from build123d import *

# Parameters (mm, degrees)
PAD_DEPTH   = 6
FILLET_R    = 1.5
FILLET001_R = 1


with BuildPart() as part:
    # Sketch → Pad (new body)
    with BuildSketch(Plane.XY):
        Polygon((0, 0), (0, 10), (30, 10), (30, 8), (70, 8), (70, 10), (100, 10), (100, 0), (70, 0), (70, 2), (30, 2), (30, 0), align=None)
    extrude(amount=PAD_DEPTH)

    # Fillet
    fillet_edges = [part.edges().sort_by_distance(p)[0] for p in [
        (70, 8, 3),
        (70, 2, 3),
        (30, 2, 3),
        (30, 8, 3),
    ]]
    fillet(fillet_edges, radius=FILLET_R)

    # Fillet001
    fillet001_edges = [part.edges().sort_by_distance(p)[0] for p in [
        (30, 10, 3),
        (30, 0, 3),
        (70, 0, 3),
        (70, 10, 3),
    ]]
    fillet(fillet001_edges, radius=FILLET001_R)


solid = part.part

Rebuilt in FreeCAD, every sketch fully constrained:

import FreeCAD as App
import Part
import Sketcher
from FreeCAD import Vector


def edges_at(feature, points):
    """Names of the edges that pass closest to the given points."""
    edges = feature.Shape.Edges
    near = lambda p: min(range(len(edges)), key=lambda i: edges[i].distToShape(Part.Vertex(*p))[0])
    return sorted({f"Edge{near(p) + 1}" for p in points})

doc = App.newDocument("Part")
params = doc.addObject("Spreadsheet::Sheet", "Params")
for row, (alias, value) in enumerate([
    ("sketch1_width", "30 mm"),
    ("sketch1_width2", "40 mm"),
    ("sketch1_height", "10 mm"),
    ("sketch1_height2", "2 mm"),
    ("pad1_length", "6 mm"),
    ("fillet_radius", "1.5 mm"),
    ("fillet2_radius", "1 mm"),
], start=1):
    params.set(f"A{row}", alias)
    params.set(f"B{row}", "=" + value)
    params.setAlias(f"B{row}", alias)

body = doc.addObject("PartDesign::Body", "Body")

# Sketch on XY plane
sketch1 = doc.addObject("Sketcher::SketchObject", "Sketch")
body.addObject(sketch1)
sketch1.AttachmentSupport = (doc.XY_Plane, [""])
sketch1.MapMode = "FlatFace"
sketch1.addGeometry(Part.LineSegment(Vector(0, 10, 0), Vector(0, 0, 0)), False)
sketch1.addGeometry(Part.LineSegment(Vector(0, 0, 0), Vector(30, 0, 0)), False)
sketch1.addGeometry(Part.LineSegment(Vector(30, 0, 0), Vector(30, 2, 0)), False)
sketch1.addGeometry(Part.LineSegment(Vector(30, 2, 0), Vector(70, 2, 0)), False)
sketch1.addGeometry(Part.LineSegment(Vector(70, 2, 0), Vector(70, 0, 0)), False)
sketch1.addGeometry(Part.LineSegment(Vector(70, 0, 0), Vector(100, 0, 0)), False)
sketch1.addGeometry(Part.LineSegment(Vector(100, 0, 0), Vector(100, 10, 0)), False)
sketch1.addGeometry(Part.LineSegment(Vector(100, 10, 0), Vector(70, 10, 0)), False)
sketch1.addGeometry(Part.LineSegment(Vector(70, 10, 0), Vector(70, 8, 0)), False)
sketch1.addGeometry(Part.LineSegment(Vector(70, 8, 0), Vector(30, 8, 0)), False)
sketch1.addGeometry(Part.LineSegment(Vector(30, 8, 0), Vector(30, 10, 0)), False)
sketch1.addGeometry(Part.LineSegment(Vector(30, 10, 0), Vector(0, 10, 0)), False)
sketch1.addConstraint(Sketcher.Constraint("Coincident", 0, 2, 1, 1))
sketch1.addConstraint(Sketcher.Constraint("Coincident", 1, 2, 2, 1))
sketch1.addConstraint(Sketcher.Constraint("Coincident", 2, 2, 3, 1))
sketch1.addConstraint(Sketcher.Constraint("Coincident", 3, 2, 4, 1))
sketch1.addConstraint(Sketcher.Constraint("Coincident", 4, 2, 5, 1))
sketch1.addConstraint(Sketcher.Constraint("Coincident", 5, 2, 6, 1))
sketch1.addConstraint(Sketcher.Constraint("Coincident", 6, 2, 7, 1))
sketch1.addConstraint(Sketcher.Constraint("Coincident", 7, 2, 8, 1))
sketch1.addConstraint(Sketcher.Constraint("Coincident", 8, 2, 9, 1))
sketch1.addConstraint(Sketcher.Constraint("Coincident", 9, 2, 10, 1))
sketch1.addConstraint(Sketcher.Constraint("Coincident", 10, 2, 11, 1))
sketch1.addConstraint(Sketcher.Constraint("Coincident", 11, 2, 0, 1))
sketch1.addConstraint(Sketcher.Constraint("Vertical", 0))
sketch1.addConstraint(Sketcher.Constraint("Horizontal", 1))
sketch1.addConstraint(Sketcher.Constraint("Vertical", 2))
sketch1.addConstraint(Sketcher.Constraint("Horizontal", 3))
sketch1.addConstraint(Sketcher.Constraint("Vertical", 4))
sketch1.addConstraint(Sketcher.Constraint("Horizontal", 5))
sketch1.addConstraint(Sketcher.Constraint("Vertical", 6))
sketch1.addConstraint(Sketcher.Constraint("Horizontal", 7))
sketch1.addConstraint(Sketcher.Constraint("Vertical", 8))
sketch1.addConstraint(Sketcher.Constraint("Horizontal", 9))
sketch1.addConstraint(Sketcher.Constraint("Vertical", 10))
sketch1.addConstraint(Sketcher.Constraint("Horizontal", 11))
sketch1.addConstraint(Sketcher.Constraint("Coincident", 0, 2, -1, 1))
sketch1.addConstraint(Sketcher.Constraint("PointOnObject", 4, 2, -1))
sketch1.addConstraint(Sketcher.Constraint("Horizontal", 7, 2, 10, 2))
sketch1.addConstraint(Sketcher.Constraint("Vertical", 4, 2, 7, 2))
sketch1.addConstraint(Sketcher.Constraint("Vertical", 2, 2, 9, 2))
sketch1.addConstraint(Sketcher.Constraint("Equal", 1, 5))
sketch1.addConstraint(Sketcher.Constraint("Equal", 4, 8))
sketch1.addConstraint(Sketcher.Constraint("DistanceX", 1, 1, 1, 2, 30.0))
sketch1.addConstraint(Sketcher.Constraint("DistanceX", 3, 1, 3, 2, 40.0))
sketch1.addConstraint(Sketcher.Constraint("DistanceY", 0, 2, 0, 1, 10.0))
sketch1.addConstraint(Sketcher.Constraint("DistanceY", 2, 1, 2, 2, 2.0))
sketch1.setExpression("Constraints[31]", "Params.sketch1_width")
sketch1.setExpression("Constraints[32]", "Params.sketch1_width2")
sketch1.setExpression("Constraints[33]", "Params.sketch1_height")
sketch1.setExpression("Constraints[34]", "Params.sketch1_height2")
pad1 = doc.addObject("PartDesign::Pad", "Pad")
body.addObject(pad1)
pad1.Profile = sketch1
pad1.setExpression("Length", "Params.pad1_length")
doc.recompute()

fillet = doc.addObject("PartDesign::Fillet", "Fillet")
body.addObject(fillet)
fillet.Base = (pad1, edges_at(pad1, [
    (70, 8, 3),
    (70, 2, 3),
    (30, 2, 3),
    (30, 8, 3),
]))
fillet.setExpression("Radius", "Params.fillet_radius")
doc.recompute()

fillet2 = doc.addObject("PartDesign::Fillet", "Fillet001")
body.addObject(fillet2)
fillet2.Base = (fillet, edges_at(fillet, [
    (30, 10, 3),
    (30, 0, 3),
    (70, 0, 3),
    (70, 10, 3),
]))
fillet2.setExpression("Radius", "Params.fillet2_radius")

doc.recompute()
